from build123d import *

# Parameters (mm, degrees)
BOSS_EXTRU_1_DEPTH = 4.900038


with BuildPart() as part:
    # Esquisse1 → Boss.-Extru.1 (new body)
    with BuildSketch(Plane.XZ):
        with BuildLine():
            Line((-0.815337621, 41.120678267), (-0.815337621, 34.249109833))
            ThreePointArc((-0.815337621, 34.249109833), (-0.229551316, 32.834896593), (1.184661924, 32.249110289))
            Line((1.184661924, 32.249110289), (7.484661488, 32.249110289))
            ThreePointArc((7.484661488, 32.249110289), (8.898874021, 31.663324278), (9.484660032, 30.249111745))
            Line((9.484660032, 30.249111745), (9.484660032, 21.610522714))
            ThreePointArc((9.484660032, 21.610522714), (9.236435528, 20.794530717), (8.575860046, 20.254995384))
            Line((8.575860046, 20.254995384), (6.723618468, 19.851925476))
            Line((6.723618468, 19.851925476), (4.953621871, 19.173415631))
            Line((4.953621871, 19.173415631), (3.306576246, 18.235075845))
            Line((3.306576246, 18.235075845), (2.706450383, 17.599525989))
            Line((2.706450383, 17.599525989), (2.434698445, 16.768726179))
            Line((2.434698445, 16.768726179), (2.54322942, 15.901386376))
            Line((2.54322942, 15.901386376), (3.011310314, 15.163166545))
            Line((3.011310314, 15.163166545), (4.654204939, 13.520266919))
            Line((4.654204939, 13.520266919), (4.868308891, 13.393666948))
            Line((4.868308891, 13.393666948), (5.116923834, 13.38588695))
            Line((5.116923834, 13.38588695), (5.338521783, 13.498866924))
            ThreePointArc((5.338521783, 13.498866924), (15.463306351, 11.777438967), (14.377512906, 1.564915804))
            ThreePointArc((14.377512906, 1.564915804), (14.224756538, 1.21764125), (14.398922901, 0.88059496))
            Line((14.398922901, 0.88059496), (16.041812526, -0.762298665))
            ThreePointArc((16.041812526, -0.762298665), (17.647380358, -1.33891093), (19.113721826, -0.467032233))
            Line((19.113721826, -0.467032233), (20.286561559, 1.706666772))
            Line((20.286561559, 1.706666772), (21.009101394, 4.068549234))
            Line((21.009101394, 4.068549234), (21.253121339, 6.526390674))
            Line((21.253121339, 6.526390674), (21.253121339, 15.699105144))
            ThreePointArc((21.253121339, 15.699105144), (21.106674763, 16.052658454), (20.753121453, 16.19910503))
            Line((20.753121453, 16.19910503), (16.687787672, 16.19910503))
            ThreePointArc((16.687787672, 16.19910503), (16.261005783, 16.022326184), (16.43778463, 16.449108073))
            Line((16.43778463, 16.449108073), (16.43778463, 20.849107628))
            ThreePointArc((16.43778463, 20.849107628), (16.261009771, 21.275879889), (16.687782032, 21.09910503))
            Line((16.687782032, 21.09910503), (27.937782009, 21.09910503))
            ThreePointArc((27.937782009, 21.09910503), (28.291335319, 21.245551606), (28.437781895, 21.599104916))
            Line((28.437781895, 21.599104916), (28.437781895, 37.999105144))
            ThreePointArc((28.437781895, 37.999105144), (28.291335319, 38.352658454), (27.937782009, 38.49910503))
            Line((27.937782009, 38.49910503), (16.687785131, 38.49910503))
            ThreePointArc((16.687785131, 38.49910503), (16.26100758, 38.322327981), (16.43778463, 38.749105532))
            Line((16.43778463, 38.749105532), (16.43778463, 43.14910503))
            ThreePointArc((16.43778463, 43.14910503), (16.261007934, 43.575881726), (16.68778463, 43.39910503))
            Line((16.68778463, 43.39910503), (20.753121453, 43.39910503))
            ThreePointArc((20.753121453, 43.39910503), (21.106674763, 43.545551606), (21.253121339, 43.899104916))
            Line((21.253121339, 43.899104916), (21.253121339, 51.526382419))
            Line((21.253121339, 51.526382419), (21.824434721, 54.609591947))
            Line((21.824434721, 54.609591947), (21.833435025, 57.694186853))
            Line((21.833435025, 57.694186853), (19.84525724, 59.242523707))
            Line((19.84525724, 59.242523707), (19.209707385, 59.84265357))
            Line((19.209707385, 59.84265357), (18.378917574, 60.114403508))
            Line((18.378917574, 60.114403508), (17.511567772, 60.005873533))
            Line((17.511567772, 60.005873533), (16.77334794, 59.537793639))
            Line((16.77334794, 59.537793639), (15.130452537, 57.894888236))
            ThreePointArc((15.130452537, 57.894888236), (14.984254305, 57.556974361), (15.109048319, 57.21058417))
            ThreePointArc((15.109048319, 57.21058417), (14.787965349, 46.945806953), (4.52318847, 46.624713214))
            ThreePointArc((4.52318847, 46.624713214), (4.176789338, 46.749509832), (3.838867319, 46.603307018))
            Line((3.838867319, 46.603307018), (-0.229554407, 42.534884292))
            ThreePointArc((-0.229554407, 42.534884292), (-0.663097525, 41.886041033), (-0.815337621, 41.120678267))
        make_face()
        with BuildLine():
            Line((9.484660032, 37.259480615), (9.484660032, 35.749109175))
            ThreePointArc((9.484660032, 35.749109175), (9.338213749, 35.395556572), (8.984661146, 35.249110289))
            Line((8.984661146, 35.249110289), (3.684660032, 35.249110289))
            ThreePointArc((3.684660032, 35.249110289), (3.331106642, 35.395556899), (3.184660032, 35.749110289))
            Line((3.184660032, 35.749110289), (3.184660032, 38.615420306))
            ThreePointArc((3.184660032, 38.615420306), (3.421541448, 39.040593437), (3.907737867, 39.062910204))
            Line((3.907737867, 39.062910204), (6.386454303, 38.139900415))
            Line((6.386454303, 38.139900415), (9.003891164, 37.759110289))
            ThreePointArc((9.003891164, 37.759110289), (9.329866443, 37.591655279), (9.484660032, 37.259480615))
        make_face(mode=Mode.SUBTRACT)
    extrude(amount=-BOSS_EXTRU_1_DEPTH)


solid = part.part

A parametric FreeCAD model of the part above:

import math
import FreeCAD as App
import Part
import Sketcher
from FreeCAD import Vector
Q = App.Units.Quantity

doc = App.newDocument("Part")
body = doc.addObject("PartDesign::Body", "Body")

# Sketch on XZ plane
sketch1 = body.newObject("Sketcher::SketchObject", "Sketch")
sketch1.AttachmentSupport = (doc.getObject("XZ_Plane"), [""])
sketch1.MapMode = "FlatFace"
sketch1.addGeometry([
    Part.LineSegment(Vector(-0.815338, 41.120678, 0), Vector(-0.815338, 34.24911, 0)),  # 0
    Part.ArcOfCircle(Part.Circle(Vector(1.184662, 34.24911, 0), Vector(0, 0, 1), 2), math.radians(-180), math.radians(-90)),  # 1
    Part.LineSegment(Vector(1.184662, 32.24911, 0), Vector(7.484661, 32.24911, 0)),  # 2
    Part.ArcOfCircle(Part.Circle(Vector(7.484661, 30.249112, 0), Vector(0, 0, 1), 1.999999), math.radians(0), math.radians(90)),  # 3
    Part.LineSegment(Vector(9.48466, 30.249112, 0), Vector(9.48466, 21.610523, 0)),  # 4
    Part.ArcOfCircle(Part.Circle(Vector(8.019337, 21.610523, 0), Vector(0, 0, 1), 1.465323), math.radians(-67.678976), math.radians(0)),  # 5
    Part.LineSegment(Vector(8.57586, 20.254995, 0), Vector(6.723618, 19.851925, 0)),  # 6
    Part.LineSegment(Vector(6.723618, 19.851925, 0), Vector(4.953622, 19.173416, 0)),  # 7
    Part.LineSegment(Vector(4.953622, 19.173416, 0), Vector(3.306576, 18.235076, 0)),  # 8
    Part.LineSegment(Vector(3.306576, 18.235076, 0), Vector(2.70645, 17.599526, 0)),  # 9
    Part.LineSegment(Vector(2.70645, 17.599526, 0), Vector(2.434698, 16.768726, 0)),  # 10
    Part.LineSegment(Vector(2.434698, 16.768726, 0), Vector(2.543229, 15.901386, 0)),  # 11
    Part.LineSegment(Vector(2.543229, 15.901386, 0), Vector(3.01131, 15.163167, 0)),  # 12
    Part.LineSegment(Vector(3.01131, 15.163167, 0), Vector(4.654205, 13.520267, 0)),  # 13
    Part.LineSegment(Vector(4.654205, 13.520267, 0), Vector(4.868309, 13.393667, 0)),  # 14
    Part.LineSegment(Vector(4.868309, 13.393667, 0), Vector(5.116924, 13.385887, 0)),  # 15
    Part.LineSegment(Vector(5.116924, 13.385887, 0), Vector(5.338522, 13.498867, 0)),  # 16
    Part.ArcOfCircle(Part.Circle(Vector(9.484662, 7.249105, 0), Vector(0, 0, 1), 7.5), math.radians(-49.278703), math.radians(123.5606)),  # 17
    Part.ArcOfCircle(Part.Circle(Vector(14.664596, 1.231402, 0), Vector(0, 0, 1), 0.440054), math.radians(130.721297), math.radians(232.862701)),  # 18
    Part.LineSegment(Vector(14.398923, 0.880595, 0), Vector(16.041813, -0.762299, 0)),  # 19
    Part.ArcOfCircle(Part.Circle(Vector(17.456026, 0.651911, 0), Vector(0, 0, 1), 1.999998), math.radians(-135.00007), math.radians(-34.019327)),  # 20
    Part.LineSegment(Vector(19.113722, -0.467032, 0), Vector(20.286562, 1.706667, 0)),  # 21
    Part.LineSegment(Vector(20.286562, 1.706667, 0), Vector(21.009101, 4.068549, 0)),  # 22
    Part.LineSegment(Vector(21.009101, 4.068549, 0), Vector(21.253121, 6.526391, 0)),  # 23
    Part.LineSegment(Vector(21.253121, 6.526391, 0), Vector(21.253121, 15.699105, 0)),  # 24
    Part.ArcOfCircle(Part.Circle(Vector(20.753121, 15.699105, 0), Vector(0, 0, 1), 0.5), math.radians(0), math.radians(90)),  # 25
    Part.LineSegment(Vector(20.753121, 16.199105, 0), Vector(16.687788, 16.199105, 0)),  # 26
    Part.ArcOfCircle(Part.Circle(Vector(16.437785, 16.199105, 0), Vector(0, 0, 1), 0.250003), math.radians(90), math.radians(360)),  # 27
    Part.LineSegment(Vector(16.437785, 16.449108, 0), Vector(16.437785, 20.849108, 0)),  # 28
    Part.ArcOfCircle(Part.Circle(Vector(16.437785, 21.099105, 0), Vector(0, 0, 1), 0.249997), math.radians(0), math.radians(270)),  # 29
    Part.LineSegment(Vector(16.687782, 21.099105, 0), Vector(27.937782, 21.099105, 0)),  # 30
    Part.ArcOfCircle(Part.Circle(Vector(27.937782, 21.599105, 0), Vector(0, 0, 1), 0.5), math.radians(-90), math.radians(0)),  # 31
    Part.LineSegment(Vector(28.437782, 21.599105, 0), Vector(28.437782, 37.999105, 0)),  # 32
    Part.ArcOfCircle(Part.Circle(Vector(27.937782, 37.999105, 0), Vector(0, 0, 1), 0.5), math.radians(0), math.radians(90)),  # 33
    Part.LineSegment(Vector(27.937782, 38.499105, 0), Vector(16.687785, 38.499105, 0)),  # 34
    Part.ArcOfCircle(Part.Circle(Vector(16.437785, 38.499105, 0), Vector(0, 0, 1), 0.250001), math.radians(90), math.radians(360)),  # 35
    Part.LineSegment(Vector(16.437785, 38.749106, 0), Vector(16.437785, 43.149105, 0)),  # 36
    Part.ArcOfCircle(Part.Circle(Vector(16.437785, 43.399105, 0), Vector(0, 0, 1), 0.25), math.radians(0), math.radians(270)),  # 37
    Part.LineSegment(Vector(16.687785, 43.399105, 0), Vector(20.753121, 43.399105, 0)),  # 38
    Part.ArcOfCircle(Part.Circle(Vector(20.753121, 43.899105, 0), Vector(0, 0, 1), 0.5), math.radians(-90), math.radians(0)),  # 39
    Part.LineSegment(Vector(21.253121, 43.899105, 0), Vector(21.253121, 51.526382, 0)),  # 40
    Part.LineSegment(Vector(21.253121, 51.526382, 0), Vector(21.824435, 54.609592, 0)),  # 41
    Part.LineSegment(Vector(21.824435, 54.609592, 0), Vector(21.833435, 57.694187, 0)),  # 42
    Part.LineSegment(Vector(21.833435, 57.694187, 0), Vector(19.845257, 59.242524, 0)),  # 43
    Part.LineSegment(Vector(19.845257, 59.242524, 0), Vector(19.209707, 59.842654, 0)),  # 44
    Part.LineSegment(Vector(19.209707, 59.842654, 0), Vector(18.378918, 60.114404, 0)),  # 45
    Part.LineSegment(Vector(18.378918, 60.114404, 0), Vector(17.511568, 60.005874, 0)),  # 46
    Part.LineSegment(Vector(17.511568, 60.005874, 0), Vector(16.773348, 59.537794, 0)),  # 47
    Part.LineSegment(Vector(16.773348, 59.537794, 0), Vector(15.130453, 57.894888, 0)),  # 48
    Part.ArcOfCircle(Part.Circle(Vector(15.484, 57.541343, 0), Vector(0, 0, 1), 0.49999), math.radians(135.000174), math.radians(221.416706)),  # 49
    Part.ArcOfCircle(Part.Circle(Vector(9.484662, 52.249105, 0), Vector(0, 0, 1), 7.5), math.radians(-131.416646), math.radians(41.416706)),  # 50
    Part.ArcOfCircle(Part.Circle(Vector(4.192422, 46.249752, 0), Vector(0, 0, 1), 0.500002), math.radians(48.583354), math.radians(135.000007)),  # 51
    Part.LineSegment(Vector(3.838867, 46.603307, 0), Vector(-0.229554, 42.534884, 0)),  # 52
    Part.ArcOfCircle(Part.Circle(Vector(1.184652, 41.120678, 0), Vector(0, 0, 1), 1.99999), math.radians(135.000007), math.radians(180)),  # 53
    Part.ArcOfCircle(Part.Circle(Vector(8.922503, 37.199669, 0), Vector(0, 0, 1), 0.56533), math.radians(6.073208), math.radians(81.722563)),  # 54
    Part.LineSegment(Vector(9.48466, 37.259481, 0), Vector(9.48466, 35.749109, 0)),  # 55
    Part.ArcOfCircle(Part.Circle(Vector(8.984661, 35.749109, 0), Vector(0, 0, 1), 0.499999), math.radians(-90), math.radians(0)),  # 56
    Part.LineSegment(Vector(8.984661, 35.24911, 0), Vector(3.68466, 35.24911, 0)),  # 57
    Part.ArcOfCircle(Part.Circle(Vector(3.68466, 35.74911, 0), Vector(0, 0, 1), 0.5), math.radians(-180), math.radians(-90)),  # 58
    Part.LineSegment(Vector(3.18466, 35.74911, 0), Vector(3.18466, 38.61542, 0)),  # 59
    Part.ArcOfCircle(Part.Circle(Vector(3.684668, 38.61542, 0), Vector(0, 0, 1), 0.500008), math.radians(63.504097), math.radians(180)),  # 60
    Part.LineSegment(Vector(3.907738, 39.06291, 0), Vector(6.386454, 38.1399, 0)),  # 61
    Part.LineSegment(Vector(6.386454, 38.1399, 0), Vector(9.003891, 37.75911, 0)),  # 62
], False)
sketch1.addConstraint([
    Sketcher.Constraint("Tangent", 0, 2, 1, 1),
    Sketcher.Constraint("Tangent", 1, 2, 2, 1),
    Sketcher.Constraint("Tangent", 2, 2, 3, 2),
    Sketcher.Constraint("Tangent", 3, 1, 4, 1),
    Sketcher.Constraint("Tangent", 4, 2, 5, 2),
    Sketcher.Constraint("Coincident", 5, 1, 6, 1),
    Sketcher.Constraint("Coincident", 6, 2, 7, 1),
    Sketcher.Constraint("Coincident", 7, 2, 8, 1),
    Sketcher.Constraint("Coincident", 8, 2, 9, 1),
    Sketcher.Constraint("Coincident", 9, 2, 10, 1),
    Sketcher.Constraint("Coincident", 10, 2, 11, 1),
    Sketcher.Constraint("Coincident", 11, 2, 12, 1),
    Sketcher.Constraint("Coincident", 12, 2, 13, 1),
    Sketcher.Constraint("Coincident", 13, 2, 14, 1),
    Sketcher.Constraint("Coincident", 14, 2, 15, 1),
    Sketcher.Constraint("Coincident", 15, 2, 16, 1),
    Sketcher.Constraint("Coincident", 16, 2, 17, 2),
    Sketcher.Constraint("Tangent", 17, 1, 18, 1),
    Sketcher.Constraint("Coincident", 18, 2, 19, 1),
    Sketcher.Constraint("Tangent", 19, 2, 20, 1),
    Sketcher.Constraint("Coincident", 20, 2, 21, 1),
    Sketcher.Constraint("Coincident", 21, 2, 22, 1),
    Sketcher.Constraint("Coincident", 22, 2, 23, 1),
    Sketcher.Constraint("Coincident", 23, 2, 24, 1),
    Sketcher.Constraint("Tangent", 24, 2, 25, 1),
    Sketcher.Constraint("Tangent", 25, 2, 26, 1),
    Sketcher.Constraint("Coincident", 26, 2, 27, 2),
    Sketcher.Constraint("Coincident", 27, 1, 28, 1),
    Sketcher.Constraint("Coincident", 28, 2, 29, 2),
    Sketcher.Constraint("Coincident", 29, 1, 30, 1),
    Sketcher.Constraint("Tangent", 30, 2, 31, 1),
    Sketcher.Constraint("Tangent", 31, 2, 32, 1),
    Sketcher.Constraint("Tangent", 32, 2, 33, 1),
    Sketcher.Constraint("Tangent", 33, 2, 34, 1),
    Sketcher.Constraint("Coincident", 34, 2, 35, 2),
    Sketcher.Constraint("Coincident", 35, 1, 36, 1),
    Sketcher.Constraint("Coincident", 36, 2, 37, 2),
    Sketcher.Constraint("Coincident", 37, 1, 38, 1),
    Sketcher.Constraint("Tangent", 38, 2, 39, 1),
    Sketcher.Constraint("Tangent", 39, 2, 40, 1),
    Sketcher.Constraint("Coincident", 40, 2, 41, 1),
    Sketcher.Constraint("Coincident", 41, 2, 42, 1),
    Sketcher.Constraint("Coincident", 42, 2, 43, 1),
    Sketcher.Constraint("Coincident", 43, 2, 44, 1),
    Sketcher.Constraint("Coincident", 44, 2, 45, 1),
    Sketcher.Constraint("Coincident", 45, 2, 46, 1),
    Sketcher.Constraint("Coincident", 46, 2, 47, 1),
    Sketcher.Constraint("Coincident", 47, 2, 48, 1),
    Sketcher.Constraint("Tangent", 48, 2, 49, 1),
    Sketcher.Constraint("Tangent", 49, 2, 50, 2),
    Sketcher.Constraint("Tangent", 50, 1, 51, 1),
    Sketcher.Constraint("Tangent", 51, 2, 52, 1),
    Sketcher.Constraint("Tangent", 52, 2, 53, 1),
    Sketcher.Constraint("Tangent", 53, 2, 0, 1),
    Sketcher.Constraint("Coincident", 54, 1, 55, 1),
    Sketcher.Constraint("Tangent", 55, 2, 56, 2),
    Sketcher.Constraint("Tangent", 56, 1, 57, 1),
    Sketcher.Constraint("Tangent", 57, 2, 58, 2),
    Sketcher.Constraint("Tangent", 58, 1, 59, 1),
    Sketcher.Constraint("Tangent", 59, 2, 60, 2),
    Sketcher.Constraint("Coincident", 60, 1, 61, 1),
    Sketcher.Constraint("Coincident", 61, 2, 62, 1),
    Sketcher.Constraint("Tangent", 62, 2, 54, 2),
    Sketcher.Constraint("Vertical", 0),
    Sketcher.Constraint("Horizontal", 2),
    Sketcher.Constraint("Vertical", 4),
    Sketcher.Constraint("Vertical", 24),
    Sketcher.Constraint("Horizontal", 26),
    Sketcher.Constraint("Vertical", 28),
    Sketcher.Constraint("Horizontal", 30),
    Sketcher.Constraint("Vertical", 32),
    Sketcher.Constraint("Horizontal", 34),
    Sketcher.Constraint("Vertical", 36),
    Sketcher.Constraint("Horizontal", 38),
    Sketcher.Constraint("Vertical", 40),
    Sketcher.Constraint("Vertical", 55),
    Sketcher.Constraint("Horizontal", 57),
    Sketcher.Constraint("Vertical", 59),
    Sketcher.Constraint("Equal", 1, 3),
    Sketcher.Constraint("Equal", 3, 20),
    Sketcher.Constraint("Equal", 25, 31),
    Sketcher.Constraint("Equal", 31, 33),
    Sketcher.Constraint("Equal", 35, 37),
    Sketcher.Constraint("Equal", 33, 39),
    Sketcher.Constraint("Equal", 17, 50),
    Sketcher.Constraint("Equal", 39, 56),
    Sketcher.Constraint("Equal", 56, 58),
    Sketcher.Constraint("Parallel", 13, 19),
    Sketcher.Constraint("Perpendicular", 10, 45),
    Sketcher.Constraint("Perpendicular", 12, 47),
    Sketcher.Constraint("Perpendicular", 19, 52),
    Sketcher.Constraint("Horizontal", 27, 3, 25, 2),
    Sketcher.Constraint("Horizontal", 35, 3, 33, 2),
    Sketcher.Constraint("Vertical", 27, 3, 29, 3),
    Sketcher.Constraint("Vertical", 29, 3, 35, 3),
    Sketcher.Constraint("Vertical", 35, 3, 37, 3),
    Sketcher.Constraint("Vertical", 25, 3, 39, 3),
    Sketcher.Constraint("Vertical", 17, 3, 50, 3),
    Sketcher.Constraint("Vertical", 50, 3, 3, 1),
    Sketcher.Constraint("Vertical", 37, 3, 27, 1),
    Sketcher.Constraint("Vertical", 28, 2, 35, 1),
    Sketcher.Constraint("Vertical", 4, 2, 54, 1),
    Sketcher.Constraint("Equal", 28, 36),
    Sketcher.Constraint("Equal", 6, 7),
    Sketcher.Constraint("Equal", 9, 10),
    Sketcher.Constraint("Equal", 15, 16),
    Sketcher.Constraint("Equal", 21, 23),
    Sketcher.Constraint("Equal", 10, 44),
    Sketcher.Constraint("Equal", 11, 45),
    Sketcher.Constraint("Equal", 10, 46),
    Sketcher.Constraint("Equal", 12, 47),
    Sketcher.Constraint("Equal", 61, 62),
    Sketcher.Constraint("Radius", 1, Q("2 mm")),
    Sketcher.Constraint("Radius", 17, Q("7.5 mm")),
    Sketcher.Constraint("Radius", 25, Q("0.5 mm")),
    Sketcher.Constraint("Angle", 52, Q("-134.999993 deg")),
    Sketcher.Constraint("Radius", 35, Q("0.250001 mm")),
    Sketcher.Constraint("DistanceX", 2, 1, 2, 2, Q("6.3 mm")),
    Sketcher.Constraint("DistanceX", 57, 2, 57, 1, Q("5.300001 mm")),
    Sketcher.Constraint("DistanceY", 28, 1, 28, 2, Q("4.4 mm")),
    Sketcher.Constraint("DistanceY", 32, 1, 32, 2, Q("16.4 mm")),
    Sketcher.Constraint("DistanceX", 30, 1, 30, 2, Q("11.25 mm")),
    Sketcher.Constraint("Radius", 49, Q("0.49999 mm")),
    Sketcher.Constraint("Radius", 53, Q("1.99999 mm")),
    Sketcher.Constraint("Radius", 54, Q("0.56533 mm")),
    Sketcher.Constraint("DistanceX", -1, 1, 49, 3, Q("15.484 mm")),
    Sketcher.Constraint("Radius", 5, Q("1.465323 mm")),
    Sketcher.Constraint("Radius", 18, Q("0.440054 mm")),
    Sketcher.Constraint("Radius", 27, Q("0.250003 mm")),
    Sketcher.Constraint("Radius", 29, Q("0.249997 mm")),
    Sketcher.Constraint("Radius", 51, Q("0.500002 mm")),
    Sketcher.Constraint("Radius", 60, Q("0.500008 mm")),
    Sketcher.Constraint("Distance", 19, Q("2.3234 mm")),
    Sketcher.Constraint("DistanceY", 0, 2, 0, 1, Q("6.871568 mm")),
    Sketcher.Constraint("DistanceY", 4, 2, 4, 1, Q("8.638589 mm")),
    Sketcher.Constraint("DistanceY", 55, 2, 55, 1, Q("1.510371 mm")),
    Sketcher.Constraint("DistanceY", 59, 1, 59, 2, Q("2.86631 mm")),
    Sketcher.Constraint("DistanceX", -1, 1, 10, 2, Q("2.434698 mm")),
    Sketcher.Constraint("DistanceY", 19, 2, -1, 1, Q("0.762299 mm")),
    Sketcher.Constraint("DistanceX", -1, 1, 22, 2, Q("21.009101 mm")),
    Sketcher.Constraint("DistanceY", -1, 1, 61, 2, Q("38.1399 mm")),
    Sketcher.Constraint("Distance", 6, Q("1.895591 mm")),
    Sketcher.Constraint("Distance", 12, Q("0.87411 mm")),
    Sketcher.Constraint("Distance", 22, Q("2.46993 mm")),
    Sketcher.Constraint("Distance", 42, Q("3.084608 mm")),
    Sketcher.Constraint("Distance", 43, Q("2.51996 mm")),
    Sketcher.Constraint("Distance", 61, Q("2.644992 mm")),
    Sketcher.Constraint("DistanceX", 26, 2, 26, 1, Q("4.065334 mm")),
    Sketcher.Constraint("DistanceY", 24, 1, 24, 2, Q("9.172714 mm")),
    Sketcher.Constraint("DistanceY", 40, 1, 40, 2, Q("7.627278 mm")),
    Sketcher.Constraint("DistanceX", -1, 1, 1, 3, Q("1.184662 mm")),
    Sketcher.Constraint("DistanceY", -1, 1, 1, 3, Q("34.24911 mm")),
    Sketcher.Constraint("DistanceX", -1, 1, 25, 3, Q("20.753121 mm")),
    Sketcher.Constraint("DistanceY", -1, 1, 54, 3, Q("37.199669 mm")),
    Sketcher.Constraint("DistanceY", -1, 1, 56, 3, Q("35.749109 mm")),
    Sketcher.Constraint("DistanceX", -1, 1, 5, 1, Q("8.57586 mm")),
    Sketcher.Constraint("DistanceX", -1, 1, 6, 2, Q("6.723618 mm")),
    Sketcher.Constraint("DistanceX", -1, 1, 7, 2, Q("4.953622 mm")),
    Sketcher.Constraint("DistanceX", -1, 1, 9, 2, Q("2.70645 mm")),
    Sketcher.Constraint("DistanceX", -1, 1, 11, 2, Q("2.543229 mm")),
    Sketcher.Constraint("DistanceX", -1, 1, 12, 2, Q("3.01131 mm")),
    Sketcher.Constraint("DistanceX", -1, 1, 14, 2, Q("4.868309 mm")),
    Sketcher.Constraint("DistanceX", -1, 1, 16, 2, Q("5.338522 mm")),
    Sketcher.Constraint("DistanceX", -1, 1, 20, 2, Q("19.113722 mm")),
    Sketcher.Constraint("DistanceX", -1, 1, 21, 2, Q("20.286562 mm")),
    Sketcher.Constraint("DistanceY", -1, 1, 22, 2, Q("4.068549 mm")),
    Sketcher.Constraint("DistanceY", -1, 1, 23, 2, Q("6.526391 mm")),
    Sketcher.Constraint("DistanceY", -1, 1, 41, 2, Q("54.609592 mm")),
    Sketcher.Constraint("DistanceY", -1, 1, 48, 2, Q("57.894888 mm")),
    Sketcher.Constraint("DistanceX", -1, 1, 50, 1, Q("4.523188 mm")),
    Sketcher.Constraint("Distance", 8, Q("1.895585 mm")),
    Sketcher.Constraint("Distance", 9, Q("0.874114 mm")),
    Sketcher.Constraint("Distance", 11, Q("0.874104 mm")),
    Sketcher.Constraint("Distance", 13, Q("2.323407 mm")),
    Sketcher.Constraint("Distance", 14, Q("0.248733 mm")),
    Sketcher.Constraint("Distance", 15, Q("0.248737 mm")),
    Sketcher.Constraint("Distance", 41, Q("3.135694 mm")),
    Sketcher.Constraint("Distance", 48, Q("2.323412 mm")),
    Sketcher.Constraint("DistanceY", -1, 1, 17, 3, Q("7.249105 mm")),
    Sketcher.Constraint("DistanceY", -1, 1, 31, 3, Q("21.599105 mm")),
    Sketcher.Constraint("DistanceY", -1, 1, 39, 3, Q("43.899105 mm")),
    Sketcher.Constraint("DistanceX", -1, 1, 8, 2, Q("3.306576 mm")),
    Sketcher.Constraint("DistanceX", -1, 1, 42, 2, Q("21.833435 mm")),
    Sketcher.Constraint("DistanceX", -1, 1, 43, 2, Q("19.845257 mm")),
])
pad1 = body.newObject("PartDesign::Pad", "Pad")
pad1.Profile = sketch1
pad1.Length = 4.900038
pad1.Reversed = True

doc.recompute()
